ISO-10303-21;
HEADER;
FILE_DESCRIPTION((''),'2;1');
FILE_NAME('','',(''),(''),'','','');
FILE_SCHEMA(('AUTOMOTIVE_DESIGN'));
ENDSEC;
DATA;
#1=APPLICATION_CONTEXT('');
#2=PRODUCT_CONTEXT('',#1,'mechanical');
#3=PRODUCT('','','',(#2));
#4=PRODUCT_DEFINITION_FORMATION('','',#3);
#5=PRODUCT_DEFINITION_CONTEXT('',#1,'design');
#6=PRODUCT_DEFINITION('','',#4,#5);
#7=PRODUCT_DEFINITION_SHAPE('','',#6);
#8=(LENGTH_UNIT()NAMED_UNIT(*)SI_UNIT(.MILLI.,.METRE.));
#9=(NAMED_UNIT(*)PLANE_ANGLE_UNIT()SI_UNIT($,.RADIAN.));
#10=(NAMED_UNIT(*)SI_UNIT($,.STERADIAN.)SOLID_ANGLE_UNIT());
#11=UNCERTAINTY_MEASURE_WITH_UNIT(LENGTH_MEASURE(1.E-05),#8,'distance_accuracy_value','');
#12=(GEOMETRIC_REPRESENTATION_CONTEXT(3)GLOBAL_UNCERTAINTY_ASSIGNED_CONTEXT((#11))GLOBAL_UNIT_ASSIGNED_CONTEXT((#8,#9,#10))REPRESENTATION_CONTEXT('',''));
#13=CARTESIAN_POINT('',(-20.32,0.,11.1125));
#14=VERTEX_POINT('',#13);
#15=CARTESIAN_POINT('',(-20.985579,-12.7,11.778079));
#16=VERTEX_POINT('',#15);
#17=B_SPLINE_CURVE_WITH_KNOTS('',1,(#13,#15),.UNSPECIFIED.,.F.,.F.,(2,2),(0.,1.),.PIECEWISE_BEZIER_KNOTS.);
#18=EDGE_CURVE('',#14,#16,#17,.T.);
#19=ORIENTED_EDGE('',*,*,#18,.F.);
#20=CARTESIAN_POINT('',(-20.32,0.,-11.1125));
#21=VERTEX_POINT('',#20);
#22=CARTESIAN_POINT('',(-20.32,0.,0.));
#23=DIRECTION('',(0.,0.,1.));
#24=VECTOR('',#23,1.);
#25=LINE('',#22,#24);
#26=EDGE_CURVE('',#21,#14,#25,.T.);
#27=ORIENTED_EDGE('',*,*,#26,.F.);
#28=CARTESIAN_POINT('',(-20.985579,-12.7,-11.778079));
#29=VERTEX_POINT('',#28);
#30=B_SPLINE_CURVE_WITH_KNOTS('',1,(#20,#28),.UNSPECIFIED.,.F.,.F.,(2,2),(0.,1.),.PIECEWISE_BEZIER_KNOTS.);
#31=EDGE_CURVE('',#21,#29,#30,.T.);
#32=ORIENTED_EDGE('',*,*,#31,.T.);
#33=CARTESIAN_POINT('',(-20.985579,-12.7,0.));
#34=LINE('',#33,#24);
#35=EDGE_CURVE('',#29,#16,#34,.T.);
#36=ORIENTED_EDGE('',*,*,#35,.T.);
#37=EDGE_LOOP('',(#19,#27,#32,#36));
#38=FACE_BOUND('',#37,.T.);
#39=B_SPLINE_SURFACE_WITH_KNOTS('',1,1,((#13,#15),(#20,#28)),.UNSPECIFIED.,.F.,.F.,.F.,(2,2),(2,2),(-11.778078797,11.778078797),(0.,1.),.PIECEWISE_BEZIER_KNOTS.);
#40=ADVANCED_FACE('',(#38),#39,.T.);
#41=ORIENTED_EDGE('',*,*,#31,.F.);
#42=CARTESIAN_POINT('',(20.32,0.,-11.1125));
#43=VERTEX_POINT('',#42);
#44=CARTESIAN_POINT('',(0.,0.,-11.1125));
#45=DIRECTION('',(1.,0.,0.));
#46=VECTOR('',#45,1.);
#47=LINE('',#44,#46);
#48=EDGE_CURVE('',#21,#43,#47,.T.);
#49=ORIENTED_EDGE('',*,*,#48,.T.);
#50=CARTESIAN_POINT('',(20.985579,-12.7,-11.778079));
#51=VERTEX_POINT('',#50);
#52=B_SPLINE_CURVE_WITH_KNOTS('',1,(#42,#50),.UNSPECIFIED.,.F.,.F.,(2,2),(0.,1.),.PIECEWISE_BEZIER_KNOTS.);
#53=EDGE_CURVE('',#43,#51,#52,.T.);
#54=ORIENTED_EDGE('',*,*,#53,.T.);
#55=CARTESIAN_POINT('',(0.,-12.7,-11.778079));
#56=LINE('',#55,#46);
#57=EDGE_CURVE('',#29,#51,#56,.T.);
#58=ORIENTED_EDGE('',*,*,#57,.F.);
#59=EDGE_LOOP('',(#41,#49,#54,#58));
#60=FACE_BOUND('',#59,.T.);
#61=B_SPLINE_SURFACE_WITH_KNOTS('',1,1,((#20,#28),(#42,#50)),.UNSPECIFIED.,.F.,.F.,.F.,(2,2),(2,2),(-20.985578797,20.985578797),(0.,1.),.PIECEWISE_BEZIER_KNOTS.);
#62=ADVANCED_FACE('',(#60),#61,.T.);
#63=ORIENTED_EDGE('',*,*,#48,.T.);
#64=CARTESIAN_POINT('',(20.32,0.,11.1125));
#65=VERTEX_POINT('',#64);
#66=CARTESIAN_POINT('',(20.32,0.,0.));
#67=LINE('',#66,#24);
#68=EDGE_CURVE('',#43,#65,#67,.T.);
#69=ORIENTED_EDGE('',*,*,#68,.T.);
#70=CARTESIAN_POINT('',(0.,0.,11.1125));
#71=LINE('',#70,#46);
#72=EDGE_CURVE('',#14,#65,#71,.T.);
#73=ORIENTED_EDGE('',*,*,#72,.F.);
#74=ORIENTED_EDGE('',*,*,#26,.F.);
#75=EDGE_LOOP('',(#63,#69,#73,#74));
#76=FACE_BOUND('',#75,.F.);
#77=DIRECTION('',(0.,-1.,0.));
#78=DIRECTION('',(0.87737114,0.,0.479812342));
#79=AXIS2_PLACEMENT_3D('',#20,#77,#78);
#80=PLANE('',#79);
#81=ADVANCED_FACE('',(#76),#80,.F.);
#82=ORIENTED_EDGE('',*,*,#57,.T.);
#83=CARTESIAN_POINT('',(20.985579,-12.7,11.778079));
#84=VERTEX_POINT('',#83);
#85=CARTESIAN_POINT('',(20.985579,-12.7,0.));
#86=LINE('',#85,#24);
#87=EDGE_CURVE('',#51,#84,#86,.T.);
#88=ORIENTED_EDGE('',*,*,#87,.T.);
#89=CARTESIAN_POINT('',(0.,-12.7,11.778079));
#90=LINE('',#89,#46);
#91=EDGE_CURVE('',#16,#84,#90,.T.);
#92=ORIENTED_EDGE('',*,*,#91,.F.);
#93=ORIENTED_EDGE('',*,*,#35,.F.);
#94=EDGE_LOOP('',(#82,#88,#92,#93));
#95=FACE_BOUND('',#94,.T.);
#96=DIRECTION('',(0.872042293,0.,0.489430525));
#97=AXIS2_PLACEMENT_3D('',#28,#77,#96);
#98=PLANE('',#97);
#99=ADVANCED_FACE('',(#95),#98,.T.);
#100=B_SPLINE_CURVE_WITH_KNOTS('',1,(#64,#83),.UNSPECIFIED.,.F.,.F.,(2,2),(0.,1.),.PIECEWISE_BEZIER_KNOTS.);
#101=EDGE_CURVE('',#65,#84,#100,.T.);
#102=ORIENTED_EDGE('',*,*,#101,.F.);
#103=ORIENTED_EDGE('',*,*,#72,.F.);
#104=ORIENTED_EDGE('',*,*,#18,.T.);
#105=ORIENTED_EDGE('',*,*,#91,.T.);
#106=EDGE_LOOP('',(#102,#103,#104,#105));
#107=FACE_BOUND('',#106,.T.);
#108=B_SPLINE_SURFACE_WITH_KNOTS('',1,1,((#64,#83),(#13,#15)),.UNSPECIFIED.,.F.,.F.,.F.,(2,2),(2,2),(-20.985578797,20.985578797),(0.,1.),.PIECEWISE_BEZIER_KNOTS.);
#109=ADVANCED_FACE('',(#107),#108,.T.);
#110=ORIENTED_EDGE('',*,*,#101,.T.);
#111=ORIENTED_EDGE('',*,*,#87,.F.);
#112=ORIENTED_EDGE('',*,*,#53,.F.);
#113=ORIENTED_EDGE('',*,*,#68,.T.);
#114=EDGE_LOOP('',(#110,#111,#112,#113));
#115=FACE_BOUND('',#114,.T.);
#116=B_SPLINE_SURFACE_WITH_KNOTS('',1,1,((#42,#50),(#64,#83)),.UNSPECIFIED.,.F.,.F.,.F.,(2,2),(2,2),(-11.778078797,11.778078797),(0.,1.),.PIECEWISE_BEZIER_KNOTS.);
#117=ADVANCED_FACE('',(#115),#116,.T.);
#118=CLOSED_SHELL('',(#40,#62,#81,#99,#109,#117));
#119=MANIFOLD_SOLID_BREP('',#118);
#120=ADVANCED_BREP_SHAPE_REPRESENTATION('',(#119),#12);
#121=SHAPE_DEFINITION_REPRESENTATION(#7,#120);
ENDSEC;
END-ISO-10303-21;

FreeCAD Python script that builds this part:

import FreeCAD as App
import Part
import Sketcher
Q = App.Units.Quantity


def add_polygon(sketch, points):
    """Adds a closed chain of lines whose ends are joined by coincident constraints."""
    first, n = sketch.GeometryCount, len(points)
    for a, b in zip(points, points[1:] + points[:1]):
        sketch.addGeometry(Part.LineSegment(App.Vector(*a, 0), App.Vector(*b, 0)), False)
    for i in range(n):
        sketch.addConstraint(Sketcher.Constraint("Coincident", first + i, 2, first + (i + 1) % n, 1))

doc = App.newDocument("Part")
body = doc.addObject("PartDesign::Body", "Body")

# Sketch on XZ plane
sketch1 = body.newObject("Sketcher::SketchObject", "Sketch")
sketch1.AttachmentSupport = (doc.getObject("XZ_Plane"), [""])
sketch1.MapMode = "FlatFace"
add_polygon(sketch1, [(-20, 11), (-20, -11), (20, -11), (20, 11)])  # lines 0-3
sketch1.addConstraint(Sketcher.Constraint("Vertical", 0))
sketch1.addConstraint(Sketcher.Constraint("Horizontal", 1))
sketch1.addConstraint(Sketcher.Constraint("Vertical", 2))
sketch1.addConstraint(Sketcher.Constraint("Horizontal", 3))
sketch1.addConstraint(Sketcher.Constraint("Symmetric", 0, 2, 2, 2, -1, 1))
sketch1.addConstraint(Sketcher.Constraint("DistanceX", 1, 1, 1, 2, Q("1.6 in")))
sketch1.addConstraint(Sketcher.Constraint("DistanceY", 0, 2, 0, 1, Q("0.875 in")))
pad1 = body.newObject("PartDesign::Pad", "Pad")
pad1.Profile = sketch1
pad1.Length = Q("0.5 in")
pad1.TaperAngle = 3

doc.recompute()
